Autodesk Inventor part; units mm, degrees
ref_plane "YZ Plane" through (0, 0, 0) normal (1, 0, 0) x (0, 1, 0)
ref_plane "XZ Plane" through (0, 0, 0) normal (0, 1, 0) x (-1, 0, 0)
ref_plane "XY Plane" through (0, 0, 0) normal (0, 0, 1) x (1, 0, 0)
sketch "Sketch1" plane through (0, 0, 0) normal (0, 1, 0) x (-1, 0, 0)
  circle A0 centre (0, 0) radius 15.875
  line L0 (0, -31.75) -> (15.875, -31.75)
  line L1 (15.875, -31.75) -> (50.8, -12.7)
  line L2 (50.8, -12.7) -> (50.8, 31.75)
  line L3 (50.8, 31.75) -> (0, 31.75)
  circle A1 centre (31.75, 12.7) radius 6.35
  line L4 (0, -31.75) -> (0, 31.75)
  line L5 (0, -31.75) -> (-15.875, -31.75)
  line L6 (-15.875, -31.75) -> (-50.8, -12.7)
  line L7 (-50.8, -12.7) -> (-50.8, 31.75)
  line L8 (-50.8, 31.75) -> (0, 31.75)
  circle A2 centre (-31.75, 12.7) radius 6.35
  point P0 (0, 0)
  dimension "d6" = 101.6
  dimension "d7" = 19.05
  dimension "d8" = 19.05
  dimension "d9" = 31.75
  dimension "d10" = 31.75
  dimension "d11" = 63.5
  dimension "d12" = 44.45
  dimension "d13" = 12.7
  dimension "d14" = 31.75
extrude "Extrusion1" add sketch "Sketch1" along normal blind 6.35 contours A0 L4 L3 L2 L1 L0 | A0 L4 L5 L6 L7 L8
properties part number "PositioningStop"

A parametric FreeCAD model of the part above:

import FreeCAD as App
import Part
import Sketcher
Q = App.Units.Quantity


def add_polygon(sketch, points):
    """Adds a closed chain of lines whose ends are joined by coincident constraints."""
    first, n = sketch.GeometryCount, len(points)
    for a, b in zip(points, points[1:] + points[:1]):
        sketch.addGeometry(Part.LineSegment(App.Vector(*a, 0), App.Vector(*b, 0)), False)
    for i in range(n):
        sketch.addConstraint(Sketcher.Constraint("Coincident", first + i, 2, first + (i + 1) % n, 1))

doc = App.newDocument("Part")
body = doc.addObject("PartDesign::Body", "Body")

# Sketch on XZ plane
sketch1 = doc.addObject("Sketcher::SketchObject", "Sketch")
body.addObject(sketch1)
sketch1.AttachmentSupport = (doc.XZ_Plane, [""])
sketch1.MapMode = "FlatFace"
add_polygon(sketch1, [(-51, 32), (51, 32), (51, -13), (16, -32), (-16, -32), (-51, -13)])  # lines 0-5
sketch1.addGeometry(Part.Circle(App.Vector(0, 0, 0), App.Vector(0, 0, 1), 16), False)  # 6
sketch1.addGeometry(Part.Circle(App.Vector(-32, 13, 0), App.Vector(0, 0, 1), 6), False)  # 7
sketch1.addGeometry(Part.Circle(App.Vector(32, 13, 0), App.Vector(0, 0, 1), 6), False)  # 8
sketch1.addConstraint([
    Sketcher.Constraint("Horizontal", 0),
    Sketcher.Constraint("Vertical", 1),
    Sketcher.Constraint("Horizontal", 3),
    Sketcher.Constraint("Vertical", 5),
    Sketcher.Constraint("Coincident", 6, 3, -1, 1),
    Sketcher.Constraint("Equal", 7, 8),
    Sketcher.Constraint("Symmetric", 7, 3, 8, 3, -2),
    Sketcher.Constraint("Symmetric", 1, 2, 4, 2, -2),
    Sketcher.Constraint("Equal", 2, 4),
    Sketcher.Constraint("Diameter", 7, Q("0.5 in")),
    Sketcher.Constraint("Diameter", 6, Q("1.25 in")),
    Sketcher.Constraint("DistanceX", 0, 1, 0, 2, Q("4 in")),
    Sketcher.Constraint("DistanceX", 3, 2, 3, 1, Q("1.25 in")),
    Sketcher.Constraint("DistanceY", 1, 2, 1, 1, Q("1.75 in")),
    Sketcher.Constraint("DistanceY", -1, 1, 7, 3, Q("0.5 in")),
    Sketcher.Constraint("DistanceY", 1, 2, -1, 1, Q("0.5 in")),
    Sketcher.Constraint("DistanceX", 7, 3, 8, 3, Q("2.5 in")),
    Sketcher.Constraint("DistanceY", 2, 2, 0, 2, Q("2.5 in")),
])
pad1 = doc.addObject("PartDesign::Pad", "Pad")
body.addObject(pad1)
pad1.Profile = sketch1
pad1.Length = Q("0.25 in")
pad1.Reversed = True

doc.recompute()
